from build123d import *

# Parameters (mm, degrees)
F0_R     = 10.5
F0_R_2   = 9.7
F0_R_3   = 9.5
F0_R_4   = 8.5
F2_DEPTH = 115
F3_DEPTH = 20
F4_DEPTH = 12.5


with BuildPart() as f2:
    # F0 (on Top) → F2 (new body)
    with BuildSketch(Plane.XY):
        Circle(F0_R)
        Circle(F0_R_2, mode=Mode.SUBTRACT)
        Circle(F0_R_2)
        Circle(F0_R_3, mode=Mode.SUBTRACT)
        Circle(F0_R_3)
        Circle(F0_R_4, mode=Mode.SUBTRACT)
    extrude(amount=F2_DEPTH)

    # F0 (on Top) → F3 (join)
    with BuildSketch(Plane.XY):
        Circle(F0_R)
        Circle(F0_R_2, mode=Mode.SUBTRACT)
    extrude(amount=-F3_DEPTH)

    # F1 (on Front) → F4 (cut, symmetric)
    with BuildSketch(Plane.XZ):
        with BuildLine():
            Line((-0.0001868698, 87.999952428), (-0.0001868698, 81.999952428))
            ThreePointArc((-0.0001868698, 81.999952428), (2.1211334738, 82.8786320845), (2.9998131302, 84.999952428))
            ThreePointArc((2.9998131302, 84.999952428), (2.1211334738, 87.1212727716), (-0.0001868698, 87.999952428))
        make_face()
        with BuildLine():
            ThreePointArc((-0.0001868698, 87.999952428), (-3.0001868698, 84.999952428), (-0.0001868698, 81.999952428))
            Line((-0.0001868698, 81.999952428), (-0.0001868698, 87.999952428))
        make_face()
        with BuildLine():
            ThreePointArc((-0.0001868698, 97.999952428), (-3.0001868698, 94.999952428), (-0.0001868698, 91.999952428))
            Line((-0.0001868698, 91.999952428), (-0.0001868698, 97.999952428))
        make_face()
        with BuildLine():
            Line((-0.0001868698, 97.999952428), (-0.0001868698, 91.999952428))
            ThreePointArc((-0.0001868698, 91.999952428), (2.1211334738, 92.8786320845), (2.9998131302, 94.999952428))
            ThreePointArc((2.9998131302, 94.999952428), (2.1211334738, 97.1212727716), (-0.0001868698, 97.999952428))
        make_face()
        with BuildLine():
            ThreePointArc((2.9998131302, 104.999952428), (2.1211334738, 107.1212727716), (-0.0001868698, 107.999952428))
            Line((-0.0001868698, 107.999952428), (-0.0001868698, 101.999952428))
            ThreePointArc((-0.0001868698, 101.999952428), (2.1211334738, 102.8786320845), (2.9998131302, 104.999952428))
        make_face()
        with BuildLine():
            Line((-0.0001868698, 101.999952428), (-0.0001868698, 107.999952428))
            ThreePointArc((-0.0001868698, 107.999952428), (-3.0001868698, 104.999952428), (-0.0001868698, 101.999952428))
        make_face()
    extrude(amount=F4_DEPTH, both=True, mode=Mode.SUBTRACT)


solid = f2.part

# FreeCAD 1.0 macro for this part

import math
import FreeCAD as App
import Part
import Sketcher

V = App.Vector

doc = App.newDocument("Part")
body = doc.addObject("PartDesign::Body", "Body")

sketch1 = body.newObject("Sketcher::SketchObject", "Sketch")
sketch1.AttachmentSupport = (doc.getObject("XY_Plane"), [""])
sketch1.MapMode = "FlatFace"
sketch1.addGeometry([
    Part.Circle(V(0, 0, 0), V(0, 0, 1), 10.5),
    Part.Circle(V(0, 0, 0), V(0, 0, 1), 8.5),
], False)
sketch1.addConstraint([
    Sketcher.Constraint("Coincident", 0, 3, -1, 1),
    Sketcher.Constraint("Coincident", 1, 3, -1, 1),
    Sketcher.Constraint("Diameter", 0, 21.0),
    Sketcher.Constraint("Diameter", 1, 17.0),
])
pad1 = body.newObject("PartDesign::Pad", "Pad")
pad1.Profile = sketch1
pad1.Length = 115

sketch2 = body.newObject("Sketcher::SketchObject", "Sketch001")
sketch2.AttachmentSupport = (doc.getObject("XY_Plane"), [""])
sketch2.MapMode = "FlatFace"
sketch2.addGeometry([
    Part.Circle(V(0, 0, 0), V(0, 0, 1), 10.5),
    Part.Circle(V(0, 0, 0), V(0, 0, 1), 9.7),
], False)
sketch2.addConstraint([
    Sketcher.Constraint("Coincident", 0, 3, -1, 1),
    Sketcher.Constraint("Coincident", 1, 3, -1, 1),
    Sketcher.Constraint("Diameter", 0, 21.0),
    Sketcher.Constraint("Diameter", 1, 19.4),
])
pad2 = body.newObject("PartDesign::Pad", "Pad001")
pad2.Profile = sketch2
pad2.Length = 20
pad2.Reversed = True

sketch3 = body.newObject("Sketcher::SketchObject", "Sketch002")
sketch3.AttachmentSupport = (doc.getObject("XZ_Plane"), [""])
sketch3.MapMode = "FlatFace"
sketch3.addGeometry([
    Part.ArcOfCircle(Part.Circle(V(-0.000187, 84.999952, 0), V(0, 0, 1), 3), math.radians(-90), math.radians(0)),
    Part.ArcOfCircle(Part.Circle(V(-0.000187, 84.999952, 0), V(0, 0, 1), 3), math.radians(0), math.radians(90)),
    Part.ArcOfCircle(Part.Circle(V(-0.000187, 84.999952, 0), V(0, 0, 1), 3), math.radians(90), math.radians(270)),
    Part.ArcOfCircle(Part.Circle(V(-0.000187, 94.999952, 0), V(0, 0, 1), 3), math.radians(90), math.radians(270)),
    Part.ArcOfCircle(Part.Circle(V(-0.000187, 94.999952, 0), V(0, 0, 1), 3), math.radians(-90), math.radians(0)),
    Part.ArcOfCircle(Part.Circle(V(-0.000187, 94.999952, 0), V(0, 0, 1), 3), math.radians(0), math.radians(90)),
    Part.ArcOfCircle(Part.Circle(V(-0.000187, 104.999952, 0), V(0, 0, 1), 3), math.radians(0), math.radians(90)),
    Part.ArcOfCircle(Part.Circle(V(-0.000187, 104.999952, 0), V(0, 0, 1), 3), math.radians(90), math.radians(270)),
    Part.ArcOfCircle(Part.Circle(V(-0.000187, 104.999952, 0), V(0, 0, 1), 3), math.radians(-90), math.radians(0)),
], False)
sketch3.addConstraint([
    Sketcher.Constraint("Tangent", 0, 2, 1, 1),
    Sketcher.Constraint("Tangent", 1, 2, 2, 1),
    Sketcher.Constraint("Tangent", 2, 2, 0, 1),
    Sketcher.Constraint("Tangent", 3, 2, 4, 1),
    Sketcher.Constraint("Tangent", 4, 2, 5, 1),
    Sketcher.Constraint("Tangent", 5, 2, 3, 1),
    Sketcher.Constraint("Tangent", 6, 2, 7, 1),
    Sketcher.Constraint("Tangent", 7, 2, 8, 1),
    Sketcher.Constraint("Tangent", 8, 2, 6, 1),
    Sketcher.Constraint("Equal", 2, 3),
    Sketcher.Constraint("Equal", 5, 6),
    Sketcher.Constraint("Horizontal", 2, 3, 0, 2),
    Sketcher.Constraint("Horizontal", 5, 3, 4, 2),
    Sketcher.Constraint("Horizontal", 7, 3, 8, 2),
    Sketcher.Constraint("Vertical", 2, 3, 3, 3),
    Sketcher.Constraint("Vertical", 5, 3, 6, 3),
    Sketcher.Constraint("Vertical", 8, 3, 1, 2),
    Sketcher.Constraint("Vertical", 1, 2, 2, 2),
    Sketcher.Constraint("Vertical", 2, 2, 3, 2),
    Sketcher.Constraint("Vertical", 3, 2, 5, 2),
    Sketcher.Constraint("Vertical", 5, 2, 6, 2),
    Sketcher.Constraint("Vertical", 6, 2, 7, 2),
    Sketcher.Constraint("Radius", 0, 3.0),
    Sketcher.Constraint("DistanceY", 0, 3, 3, 3, 10.0),
    Sketcher.Constraint("DistanceY", 3, 3, 6, 3, 10.0),
    Sketcher.Constraint("DistanceX", 0, 3, -1, 1, 0.000187),
    Sketcher.Constraint("DistanceY", -1, 1, 0, 3, 84.999952),
])
pocket1 = body.newObject("PartDesign::Pocket", "Pocket")
pocket1.Profile = sketch3
pocket1.Length = 25
pocket1.Midplane = True

doc.recompute()
